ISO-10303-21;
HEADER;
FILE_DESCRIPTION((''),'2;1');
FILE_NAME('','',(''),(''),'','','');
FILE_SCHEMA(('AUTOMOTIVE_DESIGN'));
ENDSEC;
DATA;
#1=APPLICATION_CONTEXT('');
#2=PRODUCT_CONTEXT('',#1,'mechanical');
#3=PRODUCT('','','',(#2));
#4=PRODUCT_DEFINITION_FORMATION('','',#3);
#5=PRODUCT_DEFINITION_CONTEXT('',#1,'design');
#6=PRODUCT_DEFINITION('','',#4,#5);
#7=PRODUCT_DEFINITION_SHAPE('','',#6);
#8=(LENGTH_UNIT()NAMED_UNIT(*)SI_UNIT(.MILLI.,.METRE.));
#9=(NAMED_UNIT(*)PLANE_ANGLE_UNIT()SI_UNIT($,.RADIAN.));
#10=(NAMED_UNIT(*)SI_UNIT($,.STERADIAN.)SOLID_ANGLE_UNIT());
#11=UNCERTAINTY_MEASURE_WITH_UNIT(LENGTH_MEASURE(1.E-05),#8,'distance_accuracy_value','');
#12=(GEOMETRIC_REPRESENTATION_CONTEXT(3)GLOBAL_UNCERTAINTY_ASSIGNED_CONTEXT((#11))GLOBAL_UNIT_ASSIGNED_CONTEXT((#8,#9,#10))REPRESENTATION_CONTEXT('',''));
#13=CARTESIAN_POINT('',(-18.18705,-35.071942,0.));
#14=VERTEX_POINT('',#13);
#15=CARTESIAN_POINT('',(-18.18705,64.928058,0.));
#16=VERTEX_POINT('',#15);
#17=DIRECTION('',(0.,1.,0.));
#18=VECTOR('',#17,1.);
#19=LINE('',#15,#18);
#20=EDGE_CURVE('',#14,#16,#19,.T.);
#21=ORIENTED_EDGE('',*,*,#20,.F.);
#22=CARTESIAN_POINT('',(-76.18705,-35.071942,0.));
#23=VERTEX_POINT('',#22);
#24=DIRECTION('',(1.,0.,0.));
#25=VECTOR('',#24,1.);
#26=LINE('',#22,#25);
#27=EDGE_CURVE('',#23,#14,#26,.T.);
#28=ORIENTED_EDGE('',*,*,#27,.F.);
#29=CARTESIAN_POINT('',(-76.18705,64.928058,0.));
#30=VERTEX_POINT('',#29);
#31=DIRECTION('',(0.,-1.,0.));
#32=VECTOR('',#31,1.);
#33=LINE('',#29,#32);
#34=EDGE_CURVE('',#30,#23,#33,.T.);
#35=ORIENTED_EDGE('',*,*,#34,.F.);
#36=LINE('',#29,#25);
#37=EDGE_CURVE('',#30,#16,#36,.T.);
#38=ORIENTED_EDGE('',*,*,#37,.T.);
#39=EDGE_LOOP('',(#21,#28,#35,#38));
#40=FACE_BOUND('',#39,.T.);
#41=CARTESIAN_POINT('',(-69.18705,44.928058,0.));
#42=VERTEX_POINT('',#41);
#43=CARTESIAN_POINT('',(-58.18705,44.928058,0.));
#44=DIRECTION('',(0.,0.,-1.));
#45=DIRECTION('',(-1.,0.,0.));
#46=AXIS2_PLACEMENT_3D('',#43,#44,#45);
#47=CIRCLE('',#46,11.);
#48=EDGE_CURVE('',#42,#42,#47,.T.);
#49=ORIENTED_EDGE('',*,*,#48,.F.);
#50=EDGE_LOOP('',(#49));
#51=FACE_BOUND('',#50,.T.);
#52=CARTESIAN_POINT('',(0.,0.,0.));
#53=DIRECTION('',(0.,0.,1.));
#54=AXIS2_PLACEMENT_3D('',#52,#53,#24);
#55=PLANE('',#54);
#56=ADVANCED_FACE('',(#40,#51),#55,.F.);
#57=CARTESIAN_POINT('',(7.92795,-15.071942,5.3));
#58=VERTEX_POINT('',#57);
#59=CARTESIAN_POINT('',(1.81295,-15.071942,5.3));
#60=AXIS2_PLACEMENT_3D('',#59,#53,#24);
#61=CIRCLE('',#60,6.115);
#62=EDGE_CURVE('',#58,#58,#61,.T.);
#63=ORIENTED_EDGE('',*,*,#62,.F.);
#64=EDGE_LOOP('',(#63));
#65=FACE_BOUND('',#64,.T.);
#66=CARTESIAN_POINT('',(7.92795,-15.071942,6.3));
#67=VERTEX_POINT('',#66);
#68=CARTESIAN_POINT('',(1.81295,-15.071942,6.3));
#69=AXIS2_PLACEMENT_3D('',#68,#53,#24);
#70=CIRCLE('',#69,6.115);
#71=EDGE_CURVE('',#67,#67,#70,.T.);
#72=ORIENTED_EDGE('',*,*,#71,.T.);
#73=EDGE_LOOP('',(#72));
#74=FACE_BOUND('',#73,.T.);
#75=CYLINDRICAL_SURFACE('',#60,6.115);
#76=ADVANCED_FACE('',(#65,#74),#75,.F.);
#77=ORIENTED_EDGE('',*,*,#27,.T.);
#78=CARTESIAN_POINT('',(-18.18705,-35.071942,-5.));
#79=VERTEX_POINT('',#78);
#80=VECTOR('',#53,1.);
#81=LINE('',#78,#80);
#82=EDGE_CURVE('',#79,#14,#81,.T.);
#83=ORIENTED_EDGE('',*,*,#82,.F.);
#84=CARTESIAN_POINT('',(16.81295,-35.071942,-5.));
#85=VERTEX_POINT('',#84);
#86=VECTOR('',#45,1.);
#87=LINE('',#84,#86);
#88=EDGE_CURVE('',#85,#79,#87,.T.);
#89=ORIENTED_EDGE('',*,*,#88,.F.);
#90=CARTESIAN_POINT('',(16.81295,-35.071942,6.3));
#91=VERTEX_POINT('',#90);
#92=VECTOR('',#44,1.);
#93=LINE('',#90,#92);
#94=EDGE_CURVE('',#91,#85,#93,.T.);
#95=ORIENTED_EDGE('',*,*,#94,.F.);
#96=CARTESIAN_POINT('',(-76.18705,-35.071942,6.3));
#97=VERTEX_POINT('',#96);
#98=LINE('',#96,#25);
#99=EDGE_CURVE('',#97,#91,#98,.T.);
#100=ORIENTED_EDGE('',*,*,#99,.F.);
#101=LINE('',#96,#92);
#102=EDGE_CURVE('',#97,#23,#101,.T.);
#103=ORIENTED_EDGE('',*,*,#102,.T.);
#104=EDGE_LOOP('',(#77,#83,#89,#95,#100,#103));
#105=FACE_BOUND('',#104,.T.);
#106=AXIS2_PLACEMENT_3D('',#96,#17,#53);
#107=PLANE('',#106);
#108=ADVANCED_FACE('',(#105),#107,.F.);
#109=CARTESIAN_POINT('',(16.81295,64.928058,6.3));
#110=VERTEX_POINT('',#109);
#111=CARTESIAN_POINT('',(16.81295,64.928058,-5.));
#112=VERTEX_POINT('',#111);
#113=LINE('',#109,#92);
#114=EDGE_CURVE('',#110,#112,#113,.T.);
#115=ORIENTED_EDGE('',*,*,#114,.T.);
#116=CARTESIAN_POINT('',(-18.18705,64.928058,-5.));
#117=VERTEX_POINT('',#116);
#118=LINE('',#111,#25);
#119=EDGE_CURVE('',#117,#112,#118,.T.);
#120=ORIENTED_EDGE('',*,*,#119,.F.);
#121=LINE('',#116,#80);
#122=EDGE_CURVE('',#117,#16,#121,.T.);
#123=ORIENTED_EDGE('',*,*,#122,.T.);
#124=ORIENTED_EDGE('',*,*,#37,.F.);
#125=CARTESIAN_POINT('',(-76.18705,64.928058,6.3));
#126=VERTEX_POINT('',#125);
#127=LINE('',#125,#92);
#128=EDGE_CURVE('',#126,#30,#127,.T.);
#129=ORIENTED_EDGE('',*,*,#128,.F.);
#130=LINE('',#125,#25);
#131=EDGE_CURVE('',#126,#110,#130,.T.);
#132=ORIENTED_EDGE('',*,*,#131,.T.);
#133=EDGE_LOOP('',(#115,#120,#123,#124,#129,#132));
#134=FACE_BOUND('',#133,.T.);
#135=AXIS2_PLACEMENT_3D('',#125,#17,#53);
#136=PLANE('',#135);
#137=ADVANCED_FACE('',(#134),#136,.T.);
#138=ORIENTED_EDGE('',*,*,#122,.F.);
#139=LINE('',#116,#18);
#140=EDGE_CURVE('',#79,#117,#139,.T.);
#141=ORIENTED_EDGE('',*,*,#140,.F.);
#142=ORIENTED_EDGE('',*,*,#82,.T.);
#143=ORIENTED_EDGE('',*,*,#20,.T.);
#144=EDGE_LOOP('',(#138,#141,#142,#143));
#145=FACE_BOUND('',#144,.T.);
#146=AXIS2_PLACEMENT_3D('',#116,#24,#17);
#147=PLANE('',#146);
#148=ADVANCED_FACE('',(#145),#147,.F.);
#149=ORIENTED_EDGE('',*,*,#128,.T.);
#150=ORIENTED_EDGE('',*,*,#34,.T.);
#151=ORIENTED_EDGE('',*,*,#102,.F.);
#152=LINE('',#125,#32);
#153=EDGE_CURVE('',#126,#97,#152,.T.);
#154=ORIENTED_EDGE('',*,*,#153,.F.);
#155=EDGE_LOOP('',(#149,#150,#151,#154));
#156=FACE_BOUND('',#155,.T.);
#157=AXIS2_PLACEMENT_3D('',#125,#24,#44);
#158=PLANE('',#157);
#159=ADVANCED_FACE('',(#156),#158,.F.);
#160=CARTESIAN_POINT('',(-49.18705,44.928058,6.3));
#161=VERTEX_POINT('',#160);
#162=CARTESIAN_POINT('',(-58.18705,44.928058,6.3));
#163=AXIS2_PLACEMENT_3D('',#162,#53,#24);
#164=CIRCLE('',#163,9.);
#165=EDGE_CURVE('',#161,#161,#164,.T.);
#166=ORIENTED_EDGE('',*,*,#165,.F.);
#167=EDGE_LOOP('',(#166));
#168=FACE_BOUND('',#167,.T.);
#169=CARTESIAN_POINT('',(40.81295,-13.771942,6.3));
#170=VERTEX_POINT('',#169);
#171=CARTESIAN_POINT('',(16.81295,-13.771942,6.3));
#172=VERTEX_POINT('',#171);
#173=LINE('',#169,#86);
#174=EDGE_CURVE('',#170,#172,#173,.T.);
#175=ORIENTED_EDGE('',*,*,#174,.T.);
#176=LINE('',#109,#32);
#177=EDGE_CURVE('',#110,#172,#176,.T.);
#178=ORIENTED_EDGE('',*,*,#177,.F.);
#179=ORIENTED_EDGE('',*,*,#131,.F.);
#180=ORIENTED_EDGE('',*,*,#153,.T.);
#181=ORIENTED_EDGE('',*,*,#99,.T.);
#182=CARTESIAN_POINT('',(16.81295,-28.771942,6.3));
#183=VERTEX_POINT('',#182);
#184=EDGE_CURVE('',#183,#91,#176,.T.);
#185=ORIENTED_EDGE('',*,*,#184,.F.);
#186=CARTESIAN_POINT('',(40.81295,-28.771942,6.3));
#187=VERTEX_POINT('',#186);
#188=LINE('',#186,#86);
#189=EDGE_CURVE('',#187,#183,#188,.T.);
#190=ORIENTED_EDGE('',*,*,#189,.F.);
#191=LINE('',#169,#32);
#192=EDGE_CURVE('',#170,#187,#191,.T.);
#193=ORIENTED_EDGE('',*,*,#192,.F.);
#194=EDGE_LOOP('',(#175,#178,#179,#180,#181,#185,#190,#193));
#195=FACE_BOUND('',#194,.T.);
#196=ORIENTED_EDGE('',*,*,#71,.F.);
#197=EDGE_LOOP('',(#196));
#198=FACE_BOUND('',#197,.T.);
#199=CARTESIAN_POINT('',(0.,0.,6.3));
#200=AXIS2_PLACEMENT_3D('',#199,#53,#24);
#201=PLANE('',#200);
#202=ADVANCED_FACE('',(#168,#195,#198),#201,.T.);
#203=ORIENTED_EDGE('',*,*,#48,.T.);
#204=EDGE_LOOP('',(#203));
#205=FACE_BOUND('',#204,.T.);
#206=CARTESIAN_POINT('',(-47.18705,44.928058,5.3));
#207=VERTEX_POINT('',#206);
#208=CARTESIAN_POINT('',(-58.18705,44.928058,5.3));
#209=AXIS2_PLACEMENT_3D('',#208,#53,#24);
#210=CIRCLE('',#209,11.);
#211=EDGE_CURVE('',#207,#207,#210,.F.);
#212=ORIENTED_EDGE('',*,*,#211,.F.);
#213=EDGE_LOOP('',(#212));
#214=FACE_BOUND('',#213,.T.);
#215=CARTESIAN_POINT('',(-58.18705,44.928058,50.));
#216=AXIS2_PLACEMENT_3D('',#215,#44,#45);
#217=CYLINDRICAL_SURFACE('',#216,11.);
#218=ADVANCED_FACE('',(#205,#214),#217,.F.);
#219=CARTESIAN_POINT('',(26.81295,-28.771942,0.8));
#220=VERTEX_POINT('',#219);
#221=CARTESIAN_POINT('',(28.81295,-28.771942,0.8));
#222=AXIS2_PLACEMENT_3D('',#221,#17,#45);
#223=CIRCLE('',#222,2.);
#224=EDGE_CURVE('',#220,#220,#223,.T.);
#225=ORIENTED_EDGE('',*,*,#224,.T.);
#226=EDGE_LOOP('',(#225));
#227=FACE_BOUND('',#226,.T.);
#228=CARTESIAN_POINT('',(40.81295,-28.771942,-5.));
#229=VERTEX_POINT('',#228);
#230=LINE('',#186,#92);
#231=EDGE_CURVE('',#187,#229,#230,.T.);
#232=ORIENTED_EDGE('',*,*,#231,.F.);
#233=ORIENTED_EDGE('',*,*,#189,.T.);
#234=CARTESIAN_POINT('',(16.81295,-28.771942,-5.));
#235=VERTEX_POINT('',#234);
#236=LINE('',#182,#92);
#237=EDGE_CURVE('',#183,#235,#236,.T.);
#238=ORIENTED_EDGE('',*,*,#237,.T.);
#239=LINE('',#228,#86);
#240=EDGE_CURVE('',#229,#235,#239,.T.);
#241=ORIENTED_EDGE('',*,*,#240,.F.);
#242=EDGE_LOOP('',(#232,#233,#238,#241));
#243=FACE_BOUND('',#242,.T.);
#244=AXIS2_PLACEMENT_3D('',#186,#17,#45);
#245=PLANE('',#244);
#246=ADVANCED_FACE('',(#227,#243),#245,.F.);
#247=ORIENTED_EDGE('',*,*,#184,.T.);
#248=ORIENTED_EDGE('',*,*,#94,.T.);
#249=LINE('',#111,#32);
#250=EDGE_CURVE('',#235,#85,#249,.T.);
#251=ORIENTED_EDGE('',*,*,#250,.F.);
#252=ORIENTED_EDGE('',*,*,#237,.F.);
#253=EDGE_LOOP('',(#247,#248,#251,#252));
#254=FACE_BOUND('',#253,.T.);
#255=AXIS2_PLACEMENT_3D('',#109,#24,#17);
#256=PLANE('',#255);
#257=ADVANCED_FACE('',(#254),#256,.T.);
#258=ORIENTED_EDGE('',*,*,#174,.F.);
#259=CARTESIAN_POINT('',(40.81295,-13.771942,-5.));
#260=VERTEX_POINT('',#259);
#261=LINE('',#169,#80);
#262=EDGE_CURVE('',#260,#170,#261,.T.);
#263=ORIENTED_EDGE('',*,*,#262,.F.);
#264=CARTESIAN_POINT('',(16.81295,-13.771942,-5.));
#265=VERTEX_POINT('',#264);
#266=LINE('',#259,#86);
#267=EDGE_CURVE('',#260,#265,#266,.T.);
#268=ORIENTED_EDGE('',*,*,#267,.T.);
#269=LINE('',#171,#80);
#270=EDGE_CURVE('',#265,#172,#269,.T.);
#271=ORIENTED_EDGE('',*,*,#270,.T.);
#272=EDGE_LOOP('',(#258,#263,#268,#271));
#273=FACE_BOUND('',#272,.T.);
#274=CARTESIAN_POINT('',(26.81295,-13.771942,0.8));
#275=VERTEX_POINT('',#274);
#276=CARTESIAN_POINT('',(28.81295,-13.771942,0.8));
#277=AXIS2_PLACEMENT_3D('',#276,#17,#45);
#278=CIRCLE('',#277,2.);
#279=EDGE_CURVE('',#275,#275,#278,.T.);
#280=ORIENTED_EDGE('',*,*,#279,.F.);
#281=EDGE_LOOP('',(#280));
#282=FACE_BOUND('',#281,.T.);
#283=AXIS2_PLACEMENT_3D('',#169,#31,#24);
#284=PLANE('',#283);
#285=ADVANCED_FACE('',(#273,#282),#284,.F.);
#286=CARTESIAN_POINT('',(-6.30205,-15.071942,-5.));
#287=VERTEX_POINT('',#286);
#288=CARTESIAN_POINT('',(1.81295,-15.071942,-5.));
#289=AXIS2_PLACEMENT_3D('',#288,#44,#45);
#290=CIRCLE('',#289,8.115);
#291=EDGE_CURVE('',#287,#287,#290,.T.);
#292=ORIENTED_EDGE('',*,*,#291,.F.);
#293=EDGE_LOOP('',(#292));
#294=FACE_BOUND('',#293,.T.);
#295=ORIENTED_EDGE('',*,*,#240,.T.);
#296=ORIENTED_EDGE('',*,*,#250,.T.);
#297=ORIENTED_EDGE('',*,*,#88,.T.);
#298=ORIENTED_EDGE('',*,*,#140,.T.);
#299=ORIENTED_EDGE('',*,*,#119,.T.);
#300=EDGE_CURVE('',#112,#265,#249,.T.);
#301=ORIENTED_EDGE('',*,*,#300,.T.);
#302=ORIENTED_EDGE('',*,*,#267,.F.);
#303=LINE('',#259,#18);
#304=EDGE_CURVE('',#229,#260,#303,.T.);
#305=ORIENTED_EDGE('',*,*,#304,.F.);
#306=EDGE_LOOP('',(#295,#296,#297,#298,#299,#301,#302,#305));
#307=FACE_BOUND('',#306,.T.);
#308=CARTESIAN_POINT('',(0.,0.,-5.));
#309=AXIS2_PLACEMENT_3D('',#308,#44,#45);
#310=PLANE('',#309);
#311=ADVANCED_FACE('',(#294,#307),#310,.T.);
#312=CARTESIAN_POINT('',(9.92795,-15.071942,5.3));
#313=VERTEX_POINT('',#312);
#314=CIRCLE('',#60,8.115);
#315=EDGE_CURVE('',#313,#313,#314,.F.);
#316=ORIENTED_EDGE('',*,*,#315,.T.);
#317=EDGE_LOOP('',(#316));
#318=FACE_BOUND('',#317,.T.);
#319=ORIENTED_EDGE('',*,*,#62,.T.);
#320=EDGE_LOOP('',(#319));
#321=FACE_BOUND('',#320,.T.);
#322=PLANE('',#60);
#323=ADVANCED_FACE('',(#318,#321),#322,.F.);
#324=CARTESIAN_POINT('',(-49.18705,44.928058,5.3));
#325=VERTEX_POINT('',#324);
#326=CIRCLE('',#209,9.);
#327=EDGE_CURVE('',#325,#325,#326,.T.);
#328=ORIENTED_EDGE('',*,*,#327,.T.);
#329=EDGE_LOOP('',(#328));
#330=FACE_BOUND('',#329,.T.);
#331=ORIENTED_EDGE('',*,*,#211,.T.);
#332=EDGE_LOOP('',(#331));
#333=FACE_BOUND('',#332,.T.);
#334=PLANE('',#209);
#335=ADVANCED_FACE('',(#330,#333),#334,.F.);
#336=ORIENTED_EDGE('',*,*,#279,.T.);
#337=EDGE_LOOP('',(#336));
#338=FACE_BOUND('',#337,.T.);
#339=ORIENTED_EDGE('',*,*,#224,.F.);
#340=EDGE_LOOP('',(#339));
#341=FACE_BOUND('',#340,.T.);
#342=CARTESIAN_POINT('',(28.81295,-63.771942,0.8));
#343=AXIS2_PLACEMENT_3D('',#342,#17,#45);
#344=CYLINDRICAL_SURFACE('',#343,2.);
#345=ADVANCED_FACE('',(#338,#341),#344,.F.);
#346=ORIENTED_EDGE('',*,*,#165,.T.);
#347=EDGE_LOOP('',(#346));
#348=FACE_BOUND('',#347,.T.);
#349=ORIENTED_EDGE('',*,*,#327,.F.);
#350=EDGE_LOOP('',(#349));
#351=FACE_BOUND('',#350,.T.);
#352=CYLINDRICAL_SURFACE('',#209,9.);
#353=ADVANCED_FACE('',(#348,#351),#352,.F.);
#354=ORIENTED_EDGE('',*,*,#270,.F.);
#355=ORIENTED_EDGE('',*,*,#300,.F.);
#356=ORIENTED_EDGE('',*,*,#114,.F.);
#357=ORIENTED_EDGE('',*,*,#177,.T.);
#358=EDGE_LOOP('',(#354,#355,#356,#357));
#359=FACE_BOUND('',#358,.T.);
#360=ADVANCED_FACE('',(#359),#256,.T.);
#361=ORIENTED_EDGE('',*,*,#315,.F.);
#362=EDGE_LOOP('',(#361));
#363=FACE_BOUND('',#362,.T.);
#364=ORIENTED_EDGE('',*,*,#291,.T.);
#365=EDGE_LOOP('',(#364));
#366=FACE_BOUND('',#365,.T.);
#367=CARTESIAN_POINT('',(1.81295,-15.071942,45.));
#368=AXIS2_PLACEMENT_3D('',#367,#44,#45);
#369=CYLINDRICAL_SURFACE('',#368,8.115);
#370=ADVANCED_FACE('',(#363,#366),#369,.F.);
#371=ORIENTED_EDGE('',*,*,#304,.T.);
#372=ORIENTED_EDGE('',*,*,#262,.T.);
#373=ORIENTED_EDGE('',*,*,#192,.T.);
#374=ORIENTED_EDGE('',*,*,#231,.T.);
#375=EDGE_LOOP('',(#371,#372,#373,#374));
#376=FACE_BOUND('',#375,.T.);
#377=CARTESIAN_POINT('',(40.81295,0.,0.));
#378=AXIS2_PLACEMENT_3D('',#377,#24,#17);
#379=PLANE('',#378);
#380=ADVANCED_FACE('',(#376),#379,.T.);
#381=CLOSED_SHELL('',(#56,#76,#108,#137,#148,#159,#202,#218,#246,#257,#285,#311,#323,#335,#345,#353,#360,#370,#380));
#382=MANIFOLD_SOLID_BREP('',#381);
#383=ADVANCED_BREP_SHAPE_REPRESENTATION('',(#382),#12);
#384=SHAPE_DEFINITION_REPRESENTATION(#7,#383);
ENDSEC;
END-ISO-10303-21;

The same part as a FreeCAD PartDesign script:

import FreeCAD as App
import Part
import Sketcher

V = App.Vector


def add_polygon(sketch, points):
    """Adds a closed chain of lines whose ends are joined by coincident constraints."""
    first, n = sketch.GeometryCount, len(points)
    for a, b in zip(points, points[1:] + points[:1]):
        sketch.addGeometry(Part.LineSegment(App.Vector(*a, 0), App.Vector(*b, 0)), False)
    for i in range(n):
        sketch.addConstraint(Sketcher.Constraint("Coincident", first + i, 2, first + (i + 1) % n, 1))

doc = App.newDocument("Part")
body = doc.addObject("PartDesign::Body", "Body")

# Sketch on XY plane
sketch1 = body.newObject("Sketcher::SketchObject", "Sketch")
sketch1.AttachmentSupport = (doc.getObject("XY_Plane"), [""])
sketch1.MapMode = "FlatFace"
add_polygon(sketch1, [(-76.18705, 64.928058), (-76.18705, -35.071942), (16.81295, -35.071942), (16.81295, 64.928058)])  # lines 0-3
sketch1.addConstraint([
    Sketcher.Constraint("Vertical", 0),
    Sketcher.Constraint("Horizontal", 1),
    Sketcher.Constraint("Vertical", 2),
    Sketcher.Constraint("Horizontal", 3),
    Sketcher.Constraint("DistanceX", 1, 1, 1, 2, 93.0),
    Sketcher.Constraint("DistanceY", 0, 2, 0, 1, 100.0),
    Sketcher.Constraint("DistanceX", 0, 2, -1, 1, 76.18705),
    Sketcher.Constraint("DistanceY", 0, 2, -1, 1, 35.071942),
])
pad1 = body.newObject("PartDesign::Pad", "Pad")
pad1.Profile = sketch1
pad1.Length = 6.3

# Sketch on XY plane
sketch2 = body.newObject("Sketcher::SketchObject", "Sketch001")
sketch2.AttachmentSupport = (doc.getObject("XY_Plane"), [""])
sketch2.MapMode = "FlatFace"
add_polygon(sketch2, [(16.81295, 64.928058), (16.81295, -35.071942), (-18.18705, -35.071942), (-18.18705, 64.928058)])  # lines 0-3
sketch2.addConstraint([
    Sketcher.Constraint("Vertical", 0),
    Sketcher.Constraint("Horizontal", 1),
    Sketcher.Constraint("Vertical", 2),
    Sketcher.Constraint("Horizontal", 3),
    Sketcher.Constraint("DistanceX", 1, 2, 1, 1, 35.0),
    Sketcher.Constraint("DistanceY", 0, 2, 0, 1, 100.0),
    Sketcher.Constraint("DistanceX", -1, 1, 0, 2, 16.81295),
    Sketcher.Constraint("DistanceY", 0, 2, -1, 1, 35.071942),
])
pad2 = body.newObject("PartDesign::Pad", "Pad001")
pad2.Profile = sketch2
pad2.Length = 5
pad2.Reversed = True

# Sketch on YZ plane
sketch3 = body.newObject("Sketcher::SketchObject", "Sketch002")
sketch3.AttachmentSupport = (doc.getObject("YZ_Plane"), [""])
sketch3.MapMode = "FlatFace"
sketch3.AttachmentOffset = App.Placement(V(0, 0, 16.81295), App.Rotation())
add_polygon(sketch3, [(-13.771942, 6.3), (-28.771942, 6.3), (-28.771942, -5), (-13.771942, -5)])  # lines 0-3
sketch3.addConstraint([
    Sketcher.Constraint("Horizontal", 0),
    Sketcher.Constraint("Vertical", 1),
    Sketcher.Constraint("Horizontal", 2),
    Sketcher.Constraint("Vertical", 3),
    Sketcher.Constraint("DistanceX", 0, 2, 0, 1, 15.0),
    Sketcher.Constraint("DistanceY", 1, 2, 1, 1, 11.3),
    Sketcher.Constraint("DistanceY", 1, 2, -1, 1, 5.0),
    Sketcher.Constraint("DistanceX", 0, 2, -1, 1, 28.771942),
])
pad3 = body.newObject("PartDesign::Pad", "Pad002")
pad3.Profile = sketch3
pad3.Length = 24

# Sketch on XZ plane
sketch4 = body.newObject("Sketcher::SketchObject", "Sketch003")
sketch4.AttachmentSupport = (doc.getObject("XZ_Plane"), [""])
sketch4.MapMode = "FlatFace"
sketch4.AttachmentOffset = App.Placement(V(0, 0, 13.771942), App.Rotation())
sketch4.addGeometry(Part.Circle(V(28.81295, 0.8, 0), V(0, 0, 1), 2), False)
sketch4.addConstraint([
    Sketcher.Constraint("Diameter", 0, 4.0),
    Sketcher.Constraint("DistanceY", -1, 1, 0, 3, 0.8),
    Sketcher.Constraint("DistanceX", -1, 1, 0, 3, 28.81295),
])
pocket1 = body.newObject("PartDesign::Pocket", "Pocket")
pocket1.Profile = sketch4
pocket1.Length = 50
pocket1.Reversed = True

# Sketch on XY plane
sketch5 = body.newObject("Sketcher::SketchObject", "Sketch004")
sketch5.AttachmentSupport = (doc.getObject("XY_Plane"), [""])
sketch5.MapMode = "FlatFace"
sketch5.AttachmentOffset = App.Placement(V(0, 0, -5), App.Rotation())
sketch5.addGeometry(Part.Circle(V(1.81295, -15.071942, 0), V(0, 0, 1), 8.115), False)
sketch5.addConstraint([
    Sketcher.Constraint("Diameter", 0, 16.23),
    Sketcher.Constraint("DistanceX", -1, 1, 0, 3, 1.81295),
    Sketcher.Constraint("DistanceY", 0, 3, -1, 1, 15.071942),
])
pocket2 = body.newObject("PartDesign::Pocket", "Pocket001")
pocket2.Profile = sketch5
pocket2.Length = 50
pocket2.Reversed = True

# Sketch on XY plane
sketch6 = body.newObject("Sketcher::SketchObject", "Sketch005")
sketch6.AttachmentSupport = (doc.getObject("XY_Plane"), [""])
sketch6.MapMode = "FlatFace"
sketch6.addGeometry(Part.Circle(V(-58.18705, 44.928058, 0), V(0, 0, 1), 11), False)
sketch6.addConstraint([
    Sketcher.Constraint("Diameter", 0, 22.0),
    Sketcher.Constraint("DistanceX", 0, 3, -1, 1, 58.18705),
    Sketcher.Constraint("DistanceY", -1, 1, 0, 3, 44.928058),
])
pocket3 = body.newObject("PartDesign::Pocket", "Pocket002")
pocket3.Profile = sketch6
pocket3.Length = 50
pocket3.Reversed = True

# Sketch on XY plane
sketch7 = body.newObject("Sketcher::SketchObject", "Sketch006")
sketch7.AttachmentSupport = (doc.getObject("XY_Plane"), [""])
sketch7.MapMode = "FlatFace"
sketch7.AttachmentOffset = App.Placement(V(0, 0, 5.3), App.Rotation())
sketch7.addGeometry([
    Part.Circle(V(-58.18705, 44.928058, 0), V(0, 0, 1), 11),
    Part.Circle(V(-58.18705, 44.928058, 0), V(0, 0, 1), 9),
], False)
sketch7.addConstraint([
    Sketcher.Constraint("Coincident", 1, 3, 0, 3),
    Sketcher.Constraint("Diameter", 0, 22.0),
    Sketcher.Constraint("Diameter", 1, 18.0),
    Sketcher.Constraint("DistanceX", 0, 3, -1, 1, 58.18705),
    Sketcher.Constraint("DistanceY", -1, 1, 0, 3, 44.928058),
])
pad4 = body.newObject("PartDesign::Pad", "Pad003")
pad4.Profile = sketch7
pad4.Length = 1

# Sketch on XY plane
sketch8 = body.newObject("Sketcher::SketchObject", "Sketch007")
sketch8.AttachmentSupport = (doc.getObject("XY_Plane"), [""])
sketch8.MapMode = "FlatFace"
sketch8.AttachmentOffset = App.Placement(V(0, 0, 5.3), App.Rotation())
sketch8.addGeometry([
    Part.Circle(V(1.81295, -15.071942, 0), V(0, 0, 1), 8.115),
    Part.Circle(V(1.81295, -15.071942, 0), V(0, 0, 1), 6.115),
], False)
sketch8.addConstraint([
    Sketcher.Constraint("Coincident", 1, 3, 0, 3),
    Sketcher.Constraint("Diameter", 0, 16.23),
    Sketcher.Constraint("Diameter", 1, 12.23),
    Sketcher.Constraint("DistanceX", -1, 1, 0, 3, 1.81295),
    Sketcher.Constraint("DistanceY", 0, 3, -1, 1, 15.071942),
])
pad5 = body.newObject("PartDesign::Pad", "Pad004")
pad5.Profile = sketch8
pad5.Length = 1

doc.recompute()
